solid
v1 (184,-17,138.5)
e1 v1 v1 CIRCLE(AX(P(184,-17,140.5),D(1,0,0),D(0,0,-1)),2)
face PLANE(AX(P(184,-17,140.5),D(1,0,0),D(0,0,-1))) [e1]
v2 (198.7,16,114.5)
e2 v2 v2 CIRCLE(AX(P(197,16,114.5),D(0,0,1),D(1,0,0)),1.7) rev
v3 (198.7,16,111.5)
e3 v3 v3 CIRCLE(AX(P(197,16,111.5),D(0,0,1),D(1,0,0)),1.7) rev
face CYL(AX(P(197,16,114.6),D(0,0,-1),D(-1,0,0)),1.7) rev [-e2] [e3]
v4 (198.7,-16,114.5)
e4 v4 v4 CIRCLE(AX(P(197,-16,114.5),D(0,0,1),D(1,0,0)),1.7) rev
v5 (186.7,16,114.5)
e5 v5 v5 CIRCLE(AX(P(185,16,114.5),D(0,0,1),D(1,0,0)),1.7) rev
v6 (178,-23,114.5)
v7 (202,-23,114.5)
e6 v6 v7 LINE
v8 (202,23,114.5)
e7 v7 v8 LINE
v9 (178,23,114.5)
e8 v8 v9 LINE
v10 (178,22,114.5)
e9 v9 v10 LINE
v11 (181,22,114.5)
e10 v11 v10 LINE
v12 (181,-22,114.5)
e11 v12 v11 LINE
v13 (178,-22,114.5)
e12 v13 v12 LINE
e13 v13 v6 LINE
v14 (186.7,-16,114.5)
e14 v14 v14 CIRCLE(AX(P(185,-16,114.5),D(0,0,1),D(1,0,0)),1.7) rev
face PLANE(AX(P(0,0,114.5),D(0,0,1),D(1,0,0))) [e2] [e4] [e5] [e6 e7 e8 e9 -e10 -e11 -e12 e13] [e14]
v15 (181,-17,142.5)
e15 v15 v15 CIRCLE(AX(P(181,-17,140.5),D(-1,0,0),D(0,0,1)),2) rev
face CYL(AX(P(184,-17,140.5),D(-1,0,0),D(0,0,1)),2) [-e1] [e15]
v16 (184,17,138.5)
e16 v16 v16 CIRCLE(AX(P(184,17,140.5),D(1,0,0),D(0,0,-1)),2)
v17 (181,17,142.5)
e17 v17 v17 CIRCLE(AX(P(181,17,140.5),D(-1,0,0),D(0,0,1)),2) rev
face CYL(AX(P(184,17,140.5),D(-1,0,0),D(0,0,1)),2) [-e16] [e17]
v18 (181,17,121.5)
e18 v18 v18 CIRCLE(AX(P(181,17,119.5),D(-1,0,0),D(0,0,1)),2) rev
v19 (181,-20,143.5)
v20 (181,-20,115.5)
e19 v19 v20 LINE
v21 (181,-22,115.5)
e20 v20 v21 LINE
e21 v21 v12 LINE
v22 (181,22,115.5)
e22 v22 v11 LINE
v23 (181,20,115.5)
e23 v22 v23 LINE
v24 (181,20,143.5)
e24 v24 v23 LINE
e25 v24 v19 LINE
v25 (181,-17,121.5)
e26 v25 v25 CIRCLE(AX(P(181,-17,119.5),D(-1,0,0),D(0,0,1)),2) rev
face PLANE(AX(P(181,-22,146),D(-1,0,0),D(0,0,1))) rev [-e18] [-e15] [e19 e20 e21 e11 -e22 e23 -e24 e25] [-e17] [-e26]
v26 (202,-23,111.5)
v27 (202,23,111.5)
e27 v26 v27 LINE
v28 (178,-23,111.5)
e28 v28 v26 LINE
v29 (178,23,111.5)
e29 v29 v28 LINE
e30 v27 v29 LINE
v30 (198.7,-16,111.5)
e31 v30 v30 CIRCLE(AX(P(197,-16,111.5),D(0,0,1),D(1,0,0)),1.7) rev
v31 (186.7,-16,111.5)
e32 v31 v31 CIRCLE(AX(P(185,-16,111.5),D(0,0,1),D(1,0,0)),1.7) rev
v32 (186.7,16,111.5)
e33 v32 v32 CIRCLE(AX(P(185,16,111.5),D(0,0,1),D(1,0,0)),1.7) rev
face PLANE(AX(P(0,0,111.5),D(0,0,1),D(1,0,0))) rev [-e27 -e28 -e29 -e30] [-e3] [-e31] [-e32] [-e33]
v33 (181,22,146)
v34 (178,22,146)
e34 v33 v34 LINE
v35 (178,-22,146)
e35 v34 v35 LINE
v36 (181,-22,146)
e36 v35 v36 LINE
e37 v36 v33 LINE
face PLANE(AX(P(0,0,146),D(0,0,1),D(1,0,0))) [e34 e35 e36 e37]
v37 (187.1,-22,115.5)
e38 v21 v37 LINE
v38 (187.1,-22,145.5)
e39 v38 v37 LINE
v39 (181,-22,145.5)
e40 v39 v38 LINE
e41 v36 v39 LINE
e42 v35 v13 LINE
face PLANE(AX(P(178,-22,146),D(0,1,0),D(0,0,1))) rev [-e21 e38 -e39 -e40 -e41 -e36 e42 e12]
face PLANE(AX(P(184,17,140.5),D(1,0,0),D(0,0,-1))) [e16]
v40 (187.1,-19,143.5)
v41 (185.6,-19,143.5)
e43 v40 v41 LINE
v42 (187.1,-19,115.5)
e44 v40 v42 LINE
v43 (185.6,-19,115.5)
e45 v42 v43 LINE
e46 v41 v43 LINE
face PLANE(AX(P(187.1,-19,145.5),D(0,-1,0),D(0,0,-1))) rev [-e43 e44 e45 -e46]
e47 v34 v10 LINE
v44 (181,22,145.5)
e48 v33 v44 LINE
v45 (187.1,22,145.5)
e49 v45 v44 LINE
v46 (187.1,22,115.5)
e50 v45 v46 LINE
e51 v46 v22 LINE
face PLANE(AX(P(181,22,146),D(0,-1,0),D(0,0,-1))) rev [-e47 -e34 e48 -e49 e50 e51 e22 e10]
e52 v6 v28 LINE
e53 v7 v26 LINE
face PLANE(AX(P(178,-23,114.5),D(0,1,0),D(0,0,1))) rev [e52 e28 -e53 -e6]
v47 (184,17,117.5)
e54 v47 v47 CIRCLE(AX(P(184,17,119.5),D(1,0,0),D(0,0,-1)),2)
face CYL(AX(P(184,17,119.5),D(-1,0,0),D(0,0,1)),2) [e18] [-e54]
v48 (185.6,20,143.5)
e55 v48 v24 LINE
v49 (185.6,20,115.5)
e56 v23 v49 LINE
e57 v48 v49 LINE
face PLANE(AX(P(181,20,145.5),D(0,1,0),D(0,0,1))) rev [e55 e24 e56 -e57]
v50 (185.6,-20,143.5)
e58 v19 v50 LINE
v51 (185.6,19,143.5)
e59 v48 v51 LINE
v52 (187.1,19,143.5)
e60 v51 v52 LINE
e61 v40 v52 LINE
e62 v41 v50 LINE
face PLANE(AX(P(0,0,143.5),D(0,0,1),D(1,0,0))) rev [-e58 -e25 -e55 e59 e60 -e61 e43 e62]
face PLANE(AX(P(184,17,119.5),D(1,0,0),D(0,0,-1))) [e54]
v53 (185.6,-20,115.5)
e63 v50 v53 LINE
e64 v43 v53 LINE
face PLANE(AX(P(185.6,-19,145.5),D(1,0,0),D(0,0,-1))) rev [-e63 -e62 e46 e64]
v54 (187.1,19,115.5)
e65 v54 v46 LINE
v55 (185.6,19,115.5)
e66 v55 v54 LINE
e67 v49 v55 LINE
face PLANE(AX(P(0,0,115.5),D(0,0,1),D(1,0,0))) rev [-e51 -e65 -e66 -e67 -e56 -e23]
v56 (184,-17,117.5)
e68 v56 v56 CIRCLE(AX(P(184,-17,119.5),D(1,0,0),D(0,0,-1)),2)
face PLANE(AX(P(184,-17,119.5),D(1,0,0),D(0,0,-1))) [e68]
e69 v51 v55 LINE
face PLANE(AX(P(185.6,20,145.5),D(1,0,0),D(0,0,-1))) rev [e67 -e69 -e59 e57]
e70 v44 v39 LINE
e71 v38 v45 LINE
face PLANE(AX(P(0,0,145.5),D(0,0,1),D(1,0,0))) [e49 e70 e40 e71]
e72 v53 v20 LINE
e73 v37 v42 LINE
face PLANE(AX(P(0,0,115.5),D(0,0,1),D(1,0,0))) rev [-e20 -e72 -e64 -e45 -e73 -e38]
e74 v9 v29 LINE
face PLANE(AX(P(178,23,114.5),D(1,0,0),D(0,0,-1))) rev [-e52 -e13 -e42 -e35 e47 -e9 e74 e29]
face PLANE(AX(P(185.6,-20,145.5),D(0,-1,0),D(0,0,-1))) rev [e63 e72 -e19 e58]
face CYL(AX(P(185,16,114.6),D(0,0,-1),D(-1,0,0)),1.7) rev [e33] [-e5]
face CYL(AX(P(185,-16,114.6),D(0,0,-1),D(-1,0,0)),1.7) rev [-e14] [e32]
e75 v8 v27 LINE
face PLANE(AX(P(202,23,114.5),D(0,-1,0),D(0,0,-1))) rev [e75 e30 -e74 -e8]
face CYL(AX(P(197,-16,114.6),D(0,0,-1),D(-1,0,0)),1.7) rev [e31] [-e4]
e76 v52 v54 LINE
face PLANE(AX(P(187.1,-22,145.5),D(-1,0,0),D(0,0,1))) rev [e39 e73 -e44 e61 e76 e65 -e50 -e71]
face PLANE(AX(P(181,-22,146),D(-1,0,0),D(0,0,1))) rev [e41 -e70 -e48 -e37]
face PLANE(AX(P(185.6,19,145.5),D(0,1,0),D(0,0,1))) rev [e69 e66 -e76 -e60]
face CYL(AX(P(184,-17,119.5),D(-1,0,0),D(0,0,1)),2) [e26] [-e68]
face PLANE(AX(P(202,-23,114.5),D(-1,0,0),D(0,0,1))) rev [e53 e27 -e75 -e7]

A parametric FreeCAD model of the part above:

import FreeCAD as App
import Part
import Sketcher

V = App.Vector

doc = App.newDocument("Part")
body = doc.addObject("PartDesign::Body", "Body")

# Sketch on XY plane
sketch1 = body.newObject("Sketcher::SketchObject", "Sketch")
sketch1.AttachmentSupport = (doc.getObject("XY_Plane"), [""])
sketch1.MapMode = "FlatFace"
sketch1.AttachmentOffset = App.Placement(V(0, 0, 111.5), App.Rotation())
sketch1.addGeometry([
    Part.LineSegment(V(178, 23, 0), V(178, -23, 0)),
    Part.LineSegment(V(178, -23, 0), V(202, -23, 0)),
    Part.LineSegment(V(202, -23, 0), V(202, 23, 0)),
    Part.LineSegment(V(202, 23, 0), V(178, 23, 0)),
], False)
sketch1.addConstraint([
    Sketcher.Constraint("Coincident", 0, 2, 1, 1),
    Sketcher.Constraint("Coincident", 1, 2, 2, 1),
    Sketcher.Constraint("Coincident", 2, 2, 3, 1),
    Sketcher.Constraint("Coincident", 3, 2, 0, 1),
    Sketcher.Constraint("Vertical", 0),
    Sketcher.Constraint("Horizontal", 1),
    Sketcher.Constraint("Vertical", 2),
    Sketcher.Constraint("Horizontal", 3),
    Sketcher.Constraint("DistanceX", 1, 1, 1, 2, 24.0),
    Sketcher.Constraint("DistanceY", 0, 2, 0, 1, 46.0),
    Sketcher.Constraint("DistanceX", -1, 1, 0, 2, 178.0),
    Sketcher.Constraint("DistanceY", 0, 2, -1, 1, 23.0),
])
pad1 = body.newObject("PartDesign::Pad", "Pad")
pad1.Profile = sketch1
pad1.Length = 3

# Sketch on XY plane
sketch2 = body.newObject("Sketcher::SketchObject", "Sketch001")
sketch2.AttachmentSupport = (doc.getObject("XY_Plane"), [""])
sketch2.MapMode = "FlatFace"
sketch2.AttachmentOffset = App.Placement(V(0, 0, 114.5), App.Rotation())
sketch2.addGeometry([
    Part.LineSegment(V(178, 22, 0), V(178, -22, 0)),
    Part.LineSegment(V(178, -22, 0), V(181, -22, 0)),
    Part.LineSegment(V(181, -22, 0), V(181, 22, 0)),
    Part.LineSegment(V(181, 22, 0), V(178, 22, 0)),
], False)
sketch2.addConstraint([
    Sketcher.Constraint("Coincident", 0, 2, 1, 1),
    Sketcher.Constraint("Coincident", 1, 2, 2, 1),
    Sketcher.Constraint("Coincident", 2, 2, 3, 1),
    Sketcher.Constraint("Coincident", 3, 2, 0, 1),
    Sketcher.Constraint("Vertical", 0),
    Sketcher.Constraint("Horizontal", 1),
    Sketcher.Constraint("Vertical", 2),
    Sketcher.Constraint("Horizontal", 3),
    Sketcher.Constraint("DistanceX", 1, 1, 1, 2, 3.0),
    Sketcher.Constraint("DistanceY", 0, 2, 0, 1, 44.0),
    Sketcher.Constraint("DistanceX", -1, 1, 0, 2, 178.0),
    Sketcher.Constraint("DistanceY", 0, 2, -1, 1, 22.0),
])
pad2 = body.newObject("PartDesign::Pad", "Pad001")
pad2.Profile = sketch2
pad2.Length = 31.5

# Sketch on XY plane
sketch3 = body.newObject("Sketcher::SketchObject", "Sketch002")
sketch3.AttachmentSupport = (doc.getObject("XY_Plane"), [""])
sketch3.MapMode = "FlatFace"
sketch3.AttachmentOffset = App.Placement(V(0, 0, 115.5), App.Rotation())
sketch3.addGeometry([
    Part.LineSegment(V(181, -22, 0), V(187.1, -22, 0)),  # 0
    Part.LineSegment(V(187.1, -22, 0), V(187.1, -19, 0)),  # 1
    Part.LineSegment(V(187.1, -19, 0), V(185.6, -19, 0)),  # 2
    Part.LineSegment(V(185.6, -19, 0), V(185.6, -20, 0)),  # 3
    Part.LineSegment(V(185.6, -20, 0), V(181, -20, 0)),  # 4
    Part.LineSegment(V(181, -20, 0), V(181, -22, 0)),  # 5
    Part.LineSegment(V(181, 20, 0), V(185.6, 20, 0)),  # 6
    Part.LineSegment(V(185.6, 20, 0), V(185.6, 19, 0)),  # 7
    Part.LineSegment(V(185.6, 19, 0), V(187.1, 19, 0)),  # 8
    Part.LineSegment(V(187.1, 19, 0), V(187.1, 22, 0)),  # 9
    Part.LineSegment(V(187.1, 22, 0), V(181, 22, 0)),  # 10
    Part.LineSegment(V(181, 22, 0), V(181, 20, 0)),  # 11
], False)
sketch3.addConstraint([
    Sketcher.Constraint("Coincident", 0, 2, 1, 1),
    Sketcher.Constraint("Coincident", 1, 2, 2, 1),
    Sketcher.Constraint("Coincident", 2, 2, 3, 1),
    Sketcher.Constraint("Coincident", 3, 2, 4, 1),
    Sketcher.Constraint("Coincident", 4, 2, 5, 1),
    Sketcher.Constraint("Coincident", 5, 2, 0, 1),
    Sketcher.Constraint("Coincident", 6, 2, 7, 1),
    Sketcher.Constraint("Coincident", 7, 2, 8, 1),
    Sketcher.Constraint("Coincident", 8, 2, 9, 1),
    Sketcher.Constraint("Coincident", 9, 2, 10, 1),
    Sketcher.Constraint("Coincident", 10, 2, 11, 1),
    Sketcher.Constraint("Coincident", 11, 2, 6, 1),
    Sketcher.Constraint("Horizontal", 0),
    Sketcher.Constraint("Vertical", 1),
    Sketcher.Constraint("Horizontal", 2),
    Sketcher.Constraint("Vertical", 3),
    Sketcher.Constraint("Horizontal", 4),
    Sketcher.Constraint("Vertical", 5),
    Sketcher.Constraint("Horizontal", 6),
    Sketcher.Constraint("Vertical", 7),
    Sketcher.Constraint("Horizontal", 8),
    Sketcher.Constraint("Vertical", 9),
    Sketcher.Constraint("Horizontal", 10),
    Sketcher.Constraint("Vertical", 11),
    Sketcher.Constraint("Symmetric", 3, 2, 6, 2, -1),
    Sketcher.Constraint("Symmetric", 1, 2, 8, 2, -1),
    Sketcher.Constraint("Symmetric", 5, 2, 10, 2, -1),
    Sketcher.Constraint("DistanceY", 1, 1, 1, 2, 3.0),
    Sketcher.Constraint("DistanceY", 3, 2, 3, 1, 1.0),
    Sketcher.Constraint("DistanceX", 0, 1, 0, 2, 6.1),
    Sketcher.Constraint("DistanceX", 2, 2, 2, 1, 1.5),
    Sketcher.Constraint("DistanceY", 0, 2, -1, 1, 22.0),
    Sketcher.Constraint("DistanceX", -1, 1, 4, 2, 181.0),
])
pad3 = body.newObject("PartDesign::Pad", "Pad002")
pad3.Profile = sketch3
pad3.Length = 30

# Sketch on XY plane
sketch4 = body.newObject("Sketcher::SketchObject", "Sketch003")
sketch4.AttachmentSupport = (doc.getObject("XY_Plane"), [""])
sketch4.MapMode = "FlatFace"
sketch4.AttachmentOffset = App.Placement(V(0, 0, 143.5), App.Rotation())
sketch4.addGeometry([
    Part.LineSegment(V(181, 20, 0), V(181, -20, 0)),
    Part.LineSegment(V(181, -20, 0), V(187.1, -20, 0)),
    Part.LineSegment(V(187.1, -20, 0), V(187.1, 20, 0)),
    Part.LineSegment(V(187.1, 20, 0), V(181, 20, 0)),
], False)
sketch4.addConstraint([
    Sketcher.Constraint("Coincident", 0, 2, 1, 1),
    Sketcher.Constraint("Coincident", 1, 2, 2, 1),
    Sketcher.Constraint("Coincident", 2, 2, 3, 1),
    Sketcher.Constraint("Coincident", 3, 2, 0, 1),
    Sketcher.Constraint("Vertical", 0),
    Sketcher.Constraint("Horizontal", 1),
    Sketcher.Constraint("Vertical", 2),
    Sketcher.Constraint("Horizontal", 3),
    Sketcher.Constraint("DistanceY", 0, 2, 0, 1, 40.0),
    Sketcher.Constraint("DistanceX", 1, 1, 1, 2, 6.1),
    Sketcher.Constraint("DistanceX", -1, 1, 0, 2, 181.0),
    Sketcher.Constraint("DistanceY", 0, 2, -1, 1, 20.0),
])
pad4 = body.newObject("PartDesign::Pad", "Pad003")
pad4.Profile = sketch4
pad4.Length = 2

# Sketch on YZ plane
sketch5 = body.newObject("Sketcher::SketchObject", "Sketch004")
sketch5.AttachmentSupport = (doc.getObject("YZ_Plane"), [""])
sketch5.MapMode = "FlatFace"
sketch5.AttachmentOffset = App.Placement(V(0, 0, 181), App.Rotation())
sketch5.addGeometry([
    Part.Circle(V(-17, 119.5, 0), V(0, 0, 1), 2),
    Part.Circle(V(-17, 140.5, 0), V(0, 0, 1), 2),
    Part.Circle(V(17, 119.5, 0), V(0, 0, 1), 2),
    Part.Circle(V(17, 140.5, 0), V(0, 0, 1), 2),
], False)
sketch5.addConstraint([
    Sketcher.Constraint("Equal", 0, 1),
    Sketcher.Constraint("Equal", 1, 2),
    Sketcher.Constraint("Equal", 2, 3),
    Sketcher.Constraint("Symmetric", 0, 3, 2, 3, -2),
    Sketcher.Constraint("Symmetric", 1, 3, 3, 3, -2),
    Sketcher.Constraint("Vertical", 0, 3, 1, 3),
    Sketcher.Constraint("Diameter", 0, 4.0),
    Sketcher.Constraint("DistanceX", 0, 3, -1, 1, 17.0),
    Sketcher.Constraint("DistanceY", 0, 3, 1, 3, 21.0),
    Sketcher.Constraint("DistanceY", -1, 1, 0, 3, 119.5),
])
pad5 = body.newObject("PartDesign::Pad", "Pad004")
pad5.Profile = sketch5
pad5.Length = 3

# Sketch on XY plane
sketch6 = body.newObject("Sketcher::SketchObject", "Sketch005")
sketch6.AttachmentSupport = (doc.getObject("XY_Plane"), [""])
sketch6.MapMode = "FlatFace"
sketch6.AttachmentOffset = App.Placement(V(0, 0, 111.4), App.Rotation())
sketch6.addGeometry([
    Part.Circle(V(185, -16, 0), V(0, 0, 1), 1.7),
    Part.Circle(V(185, 16, 0), V(0, 0, 1), 1.7),
    Part.Circle(V(197, -16, 0), V(0, 0, 1), 1.7),
    Part.Circle(V(197, 16, 0), V(0, 0, 1), 1.7),
], False)
sketch6.addConstraint([
    Sketcher.Constraint("Equal", 0, 1),
    Sketcher.Constraint("Equal", 1, 2),
    Sketcher.Constraint("Equal", 2, 3),
    Sketcher.Constraint("Symmetric", 0, 3, 1, 3, -1),
    Sketcher.Constraint("Symmetric", 2, 3, 3, 3, -1),
    Sketcher.Constraint("Horizontal", 0, 3, 2, 3),
    Sketcher.Constraint("Diameter", 0, 3.4),
    Sketcher.Constraint("DistanceX", -1, 1, 0, 3, 185.0),
    Sketcher.Constraint("DistanceY", 0, 3, -1, 1, 16.0),
    Sketcher.Constraint("DistanceX", -1, 1, 2, 3, 197.0),
])
pocket1 = body.newObject("PartDesign::Pocket", "Pocket")
pocket1.Profile = sketch6
pocket1.Length = 3.2
pocket1.Reversed = True

doc.recompute()
